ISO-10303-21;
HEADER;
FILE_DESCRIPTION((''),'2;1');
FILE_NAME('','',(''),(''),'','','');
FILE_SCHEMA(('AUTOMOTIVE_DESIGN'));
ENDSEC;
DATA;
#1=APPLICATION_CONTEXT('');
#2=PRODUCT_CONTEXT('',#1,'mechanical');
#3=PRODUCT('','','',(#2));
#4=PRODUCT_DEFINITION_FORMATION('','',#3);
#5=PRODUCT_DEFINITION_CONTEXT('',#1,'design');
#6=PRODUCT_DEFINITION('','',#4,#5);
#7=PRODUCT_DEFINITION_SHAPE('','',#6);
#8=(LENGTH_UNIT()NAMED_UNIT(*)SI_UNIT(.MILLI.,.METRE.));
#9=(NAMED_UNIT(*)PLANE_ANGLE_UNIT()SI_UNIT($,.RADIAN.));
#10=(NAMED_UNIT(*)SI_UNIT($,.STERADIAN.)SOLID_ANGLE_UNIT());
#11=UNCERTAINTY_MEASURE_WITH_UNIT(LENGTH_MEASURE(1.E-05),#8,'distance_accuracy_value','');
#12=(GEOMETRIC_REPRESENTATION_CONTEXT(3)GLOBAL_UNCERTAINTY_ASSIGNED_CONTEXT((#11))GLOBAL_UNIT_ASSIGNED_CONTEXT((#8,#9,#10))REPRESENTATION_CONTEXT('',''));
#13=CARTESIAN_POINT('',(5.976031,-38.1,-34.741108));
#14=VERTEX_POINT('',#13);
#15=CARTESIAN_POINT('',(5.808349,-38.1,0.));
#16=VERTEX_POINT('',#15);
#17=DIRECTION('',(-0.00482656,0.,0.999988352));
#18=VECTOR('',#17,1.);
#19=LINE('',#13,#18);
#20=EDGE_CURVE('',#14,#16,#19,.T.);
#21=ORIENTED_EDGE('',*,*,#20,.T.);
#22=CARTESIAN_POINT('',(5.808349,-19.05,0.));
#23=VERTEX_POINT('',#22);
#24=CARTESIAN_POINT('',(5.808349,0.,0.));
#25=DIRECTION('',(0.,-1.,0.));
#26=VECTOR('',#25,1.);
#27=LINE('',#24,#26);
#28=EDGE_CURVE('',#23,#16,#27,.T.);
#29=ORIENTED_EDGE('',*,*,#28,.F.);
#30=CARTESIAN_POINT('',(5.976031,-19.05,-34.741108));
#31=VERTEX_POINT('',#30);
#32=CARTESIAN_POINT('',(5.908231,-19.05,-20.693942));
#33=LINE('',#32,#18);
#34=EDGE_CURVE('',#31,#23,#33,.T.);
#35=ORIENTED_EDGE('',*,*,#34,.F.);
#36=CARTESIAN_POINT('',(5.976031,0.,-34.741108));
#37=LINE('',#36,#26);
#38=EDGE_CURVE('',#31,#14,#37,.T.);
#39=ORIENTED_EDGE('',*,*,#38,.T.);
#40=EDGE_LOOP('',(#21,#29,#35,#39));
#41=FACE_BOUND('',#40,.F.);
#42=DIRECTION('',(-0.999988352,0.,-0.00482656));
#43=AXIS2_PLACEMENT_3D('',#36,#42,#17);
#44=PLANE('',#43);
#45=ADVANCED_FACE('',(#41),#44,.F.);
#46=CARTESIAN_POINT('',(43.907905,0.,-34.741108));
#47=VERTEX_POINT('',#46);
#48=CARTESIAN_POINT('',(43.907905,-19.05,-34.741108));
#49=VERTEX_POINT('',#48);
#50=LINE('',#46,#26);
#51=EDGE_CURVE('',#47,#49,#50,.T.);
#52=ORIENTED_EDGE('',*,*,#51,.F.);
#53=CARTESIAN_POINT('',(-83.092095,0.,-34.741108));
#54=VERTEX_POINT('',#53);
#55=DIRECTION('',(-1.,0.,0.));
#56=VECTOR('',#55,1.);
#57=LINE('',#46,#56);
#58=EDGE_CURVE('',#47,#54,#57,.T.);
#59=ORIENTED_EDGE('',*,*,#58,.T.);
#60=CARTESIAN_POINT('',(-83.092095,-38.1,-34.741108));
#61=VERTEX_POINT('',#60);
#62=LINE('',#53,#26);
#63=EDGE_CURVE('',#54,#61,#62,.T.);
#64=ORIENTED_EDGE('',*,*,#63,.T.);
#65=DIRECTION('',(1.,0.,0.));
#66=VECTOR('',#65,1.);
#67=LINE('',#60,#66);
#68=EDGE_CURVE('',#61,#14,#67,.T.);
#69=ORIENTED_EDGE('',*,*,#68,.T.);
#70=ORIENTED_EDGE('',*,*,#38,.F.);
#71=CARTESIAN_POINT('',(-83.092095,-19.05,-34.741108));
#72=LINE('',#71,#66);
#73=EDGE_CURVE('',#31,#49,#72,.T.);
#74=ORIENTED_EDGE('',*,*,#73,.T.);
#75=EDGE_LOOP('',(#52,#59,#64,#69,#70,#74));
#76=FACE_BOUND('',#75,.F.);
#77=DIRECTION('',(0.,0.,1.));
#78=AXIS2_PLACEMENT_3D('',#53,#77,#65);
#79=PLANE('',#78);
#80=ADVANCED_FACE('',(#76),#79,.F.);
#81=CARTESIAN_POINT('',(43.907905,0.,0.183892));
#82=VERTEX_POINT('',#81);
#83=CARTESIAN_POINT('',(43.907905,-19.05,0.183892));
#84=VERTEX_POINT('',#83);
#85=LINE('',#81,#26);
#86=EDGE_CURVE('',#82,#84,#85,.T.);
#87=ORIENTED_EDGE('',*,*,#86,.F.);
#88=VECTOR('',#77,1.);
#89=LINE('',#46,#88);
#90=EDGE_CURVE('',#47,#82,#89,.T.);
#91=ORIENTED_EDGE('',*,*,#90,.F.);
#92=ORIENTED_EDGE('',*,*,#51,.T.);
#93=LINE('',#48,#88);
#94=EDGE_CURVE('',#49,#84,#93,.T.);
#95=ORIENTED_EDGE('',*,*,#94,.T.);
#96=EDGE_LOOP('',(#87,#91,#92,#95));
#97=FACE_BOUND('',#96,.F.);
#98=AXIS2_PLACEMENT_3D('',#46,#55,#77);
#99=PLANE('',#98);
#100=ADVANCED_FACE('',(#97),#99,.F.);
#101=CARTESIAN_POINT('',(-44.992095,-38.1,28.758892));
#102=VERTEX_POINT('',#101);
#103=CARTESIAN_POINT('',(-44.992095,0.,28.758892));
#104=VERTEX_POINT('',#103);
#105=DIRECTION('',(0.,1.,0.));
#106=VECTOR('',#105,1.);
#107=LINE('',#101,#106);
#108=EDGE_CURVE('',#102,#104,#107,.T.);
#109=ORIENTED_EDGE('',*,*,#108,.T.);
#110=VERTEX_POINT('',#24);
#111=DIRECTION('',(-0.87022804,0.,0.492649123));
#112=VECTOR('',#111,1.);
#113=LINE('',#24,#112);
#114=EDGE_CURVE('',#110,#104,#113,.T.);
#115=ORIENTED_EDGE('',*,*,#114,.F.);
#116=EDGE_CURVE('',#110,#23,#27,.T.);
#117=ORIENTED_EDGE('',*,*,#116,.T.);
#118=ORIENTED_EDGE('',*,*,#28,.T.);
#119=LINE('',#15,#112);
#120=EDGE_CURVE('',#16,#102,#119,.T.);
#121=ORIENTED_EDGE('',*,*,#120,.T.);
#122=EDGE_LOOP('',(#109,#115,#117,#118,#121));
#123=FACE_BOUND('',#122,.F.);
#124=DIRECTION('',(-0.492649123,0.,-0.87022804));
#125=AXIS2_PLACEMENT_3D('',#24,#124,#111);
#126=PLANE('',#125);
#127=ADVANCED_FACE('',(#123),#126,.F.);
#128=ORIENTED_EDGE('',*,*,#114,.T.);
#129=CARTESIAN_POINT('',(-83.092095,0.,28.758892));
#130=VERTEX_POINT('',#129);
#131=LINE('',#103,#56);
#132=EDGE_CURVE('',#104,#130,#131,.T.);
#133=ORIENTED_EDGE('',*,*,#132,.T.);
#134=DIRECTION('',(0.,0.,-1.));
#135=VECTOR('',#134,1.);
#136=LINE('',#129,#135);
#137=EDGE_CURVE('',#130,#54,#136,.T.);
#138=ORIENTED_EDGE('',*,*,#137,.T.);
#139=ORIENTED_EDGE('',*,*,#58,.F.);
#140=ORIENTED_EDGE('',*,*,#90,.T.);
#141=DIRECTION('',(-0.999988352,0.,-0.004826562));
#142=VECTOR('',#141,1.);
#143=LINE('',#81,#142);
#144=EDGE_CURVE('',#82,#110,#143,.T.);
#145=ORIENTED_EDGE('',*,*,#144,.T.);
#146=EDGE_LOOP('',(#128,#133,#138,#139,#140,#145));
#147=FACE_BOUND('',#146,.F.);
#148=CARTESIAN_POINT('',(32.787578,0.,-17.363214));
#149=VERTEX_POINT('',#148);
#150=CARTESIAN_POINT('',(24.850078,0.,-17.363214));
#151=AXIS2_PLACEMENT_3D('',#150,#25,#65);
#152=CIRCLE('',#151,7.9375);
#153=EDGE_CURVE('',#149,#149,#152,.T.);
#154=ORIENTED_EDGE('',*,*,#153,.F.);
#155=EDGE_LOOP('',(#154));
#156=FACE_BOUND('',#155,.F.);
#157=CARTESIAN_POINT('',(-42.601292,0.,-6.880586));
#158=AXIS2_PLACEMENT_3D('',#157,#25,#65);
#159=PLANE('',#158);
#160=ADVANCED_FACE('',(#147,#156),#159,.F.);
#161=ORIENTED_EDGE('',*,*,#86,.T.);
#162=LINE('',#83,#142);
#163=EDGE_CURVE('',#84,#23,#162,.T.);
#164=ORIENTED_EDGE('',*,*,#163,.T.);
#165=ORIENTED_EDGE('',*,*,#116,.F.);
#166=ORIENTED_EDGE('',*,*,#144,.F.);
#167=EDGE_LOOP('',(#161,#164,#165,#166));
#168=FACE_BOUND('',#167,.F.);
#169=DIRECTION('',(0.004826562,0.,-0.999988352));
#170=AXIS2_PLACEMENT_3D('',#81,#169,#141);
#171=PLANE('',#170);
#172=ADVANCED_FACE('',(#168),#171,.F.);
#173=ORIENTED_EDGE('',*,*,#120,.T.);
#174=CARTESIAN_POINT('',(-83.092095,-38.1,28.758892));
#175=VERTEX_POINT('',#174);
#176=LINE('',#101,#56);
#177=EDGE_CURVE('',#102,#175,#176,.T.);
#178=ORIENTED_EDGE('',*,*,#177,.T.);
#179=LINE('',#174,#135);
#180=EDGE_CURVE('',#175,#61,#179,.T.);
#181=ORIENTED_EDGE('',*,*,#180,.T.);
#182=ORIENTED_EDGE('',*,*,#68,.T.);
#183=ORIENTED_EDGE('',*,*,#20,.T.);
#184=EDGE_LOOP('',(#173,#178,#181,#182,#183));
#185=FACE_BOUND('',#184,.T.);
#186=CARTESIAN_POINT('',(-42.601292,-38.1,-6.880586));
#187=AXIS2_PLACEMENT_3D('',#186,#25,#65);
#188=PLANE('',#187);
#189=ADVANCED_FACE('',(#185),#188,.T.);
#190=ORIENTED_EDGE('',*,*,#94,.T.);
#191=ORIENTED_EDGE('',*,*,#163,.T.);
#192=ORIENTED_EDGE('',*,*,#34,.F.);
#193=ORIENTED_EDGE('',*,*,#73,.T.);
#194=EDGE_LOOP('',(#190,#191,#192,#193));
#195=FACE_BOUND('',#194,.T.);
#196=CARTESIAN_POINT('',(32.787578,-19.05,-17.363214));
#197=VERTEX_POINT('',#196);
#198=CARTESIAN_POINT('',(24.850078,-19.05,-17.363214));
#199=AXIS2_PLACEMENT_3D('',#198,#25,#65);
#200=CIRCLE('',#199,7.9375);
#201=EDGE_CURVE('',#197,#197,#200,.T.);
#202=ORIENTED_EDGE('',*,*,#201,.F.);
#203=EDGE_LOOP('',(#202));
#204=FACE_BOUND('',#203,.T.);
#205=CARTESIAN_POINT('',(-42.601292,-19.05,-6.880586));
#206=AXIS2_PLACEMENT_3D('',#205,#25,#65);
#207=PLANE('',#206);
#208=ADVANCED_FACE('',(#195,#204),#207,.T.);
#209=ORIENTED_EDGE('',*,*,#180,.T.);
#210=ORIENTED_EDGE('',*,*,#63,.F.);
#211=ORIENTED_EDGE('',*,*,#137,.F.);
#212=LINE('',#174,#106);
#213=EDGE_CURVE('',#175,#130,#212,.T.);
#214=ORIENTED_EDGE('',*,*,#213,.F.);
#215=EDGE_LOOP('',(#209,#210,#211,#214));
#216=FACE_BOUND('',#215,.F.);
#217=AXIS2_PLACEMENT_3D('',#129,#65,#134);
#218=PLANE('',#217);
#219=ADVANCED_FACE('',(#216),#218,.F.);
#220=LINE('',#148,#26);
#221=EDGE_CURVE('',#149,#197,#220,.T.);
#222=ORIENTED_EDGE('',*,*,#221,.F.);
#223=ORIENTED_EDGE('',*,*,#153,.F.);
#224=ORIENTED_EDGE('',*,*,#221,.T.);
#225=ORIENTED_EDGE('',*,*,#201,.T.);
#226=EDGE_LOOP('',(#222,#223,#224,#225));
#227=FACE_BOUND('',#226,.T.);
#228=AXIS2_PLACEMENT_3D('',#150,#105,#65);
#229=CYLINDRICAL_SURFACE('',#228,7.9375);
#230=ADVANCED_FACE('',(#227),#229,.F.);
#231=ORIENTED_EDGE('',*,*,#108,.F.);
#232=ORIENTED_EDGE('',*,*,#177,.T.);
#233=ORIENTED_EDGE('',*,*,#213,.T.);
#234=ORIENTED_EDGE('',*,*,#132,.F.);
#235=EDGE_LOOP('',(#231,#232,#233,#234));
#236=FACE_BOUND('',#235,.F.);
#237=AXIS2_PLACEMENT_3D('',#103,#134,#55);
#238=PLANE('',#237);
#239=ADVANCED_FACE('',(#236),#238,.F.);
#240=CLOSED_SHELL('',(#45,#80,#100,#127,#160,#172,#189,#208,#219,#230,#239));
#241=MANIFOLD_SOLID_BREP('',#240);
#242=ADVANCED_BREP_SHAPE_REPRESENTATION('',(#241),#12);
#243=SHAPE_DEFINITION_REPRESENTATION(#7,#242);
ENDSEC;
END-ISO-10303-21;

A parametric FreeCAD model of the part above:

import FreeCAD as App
import Part
import Sketcher
from FreeCAD import Vector
Q = App.Units.Quantity


def add_polygon(sketch, points):
    """Adds a closed chain of lines whose ends are joined by coincident constraints."""
    first, n = sketch.GeometryCount, len(points)
    for a, b in zip(points, points[1:] + points[:1]):
        sketch.addGeometry(Part.LineSegment(App.Vector(*a, 0), App.Vector(*b, 0)), False)
    for i in range(n):
        sketch.addConstraint(Sketcher.Constraint("Coincident", first + i, 2, first + (i + 1) % n, 1))

doc = App.newDocument("Part")
body = doc.addObject("PartDesign::Body", "Body")

sketch1 = body.newObject("Sketcher::SketchObject", "Sketch")
sketch1.AttachmentSupport = (doc.getObject("XZ_Plane"), [""])
sketch1.MapMode = "FlatFace"
add_polygon(sketch1, [(-83, 29), (-83, -35), (6, -35), (6, 0), (-45, 29)])
sketch1.addConstraint(Sketcher.Constraint("Vertical", 0))
sketch1.addConstraint(Sketcher.Constraint("Horizontal", 1))
sketch1.addConstraint(Sketcher.Constraint("Horizontal", 4))
sketch1.addConstraint(Sketcher.Constraint("PointOnObject", 2, 2, -1))
sketch1.addConstraint(Sketcher.Constraint("DistanceX", 4, 2, 4, 1, Q("1.5 in")))
sketch1.addConstraint(Sketcher.Constraint("DistanceY", 0, 2, 0, 1, Q("2.5 in")))
sketch1.addConstraint(Sketcher.Constraint("DistanceX", 1, 1, 1, 2, 89.068126))
sketch1.addConstraint(Sketcher.Constraint("DistanceX", -1, 1, 1, 2, 5.976031))
sketch1.addConstraint(Sketcher.Constraint("DistanceX", -1, 1, 2, 2, 5.808349))
sketch1.addConstraint(Sketcher.Constraint("DistanceY", -1, 1, 3, 2, 28.758892))
pad1 = body.newObject("PartDesign::Pad", "Pad")
pad1.Profile = sketch1
pad1.Length = Q("1.5 in")

sketch2 = body.newObject("Sketcher::SketchObject", "Sketch001")
sketch2.AttachmentSupport = (doc.getObject("XZ_Plane"), [""])
sketch2.MapMode = "FlatFace"
add_polygon(sketch2, [(-83, 29), (-83, -35), (44, -35), (44, 0), (6, 0), (-45, 29)])
sketch2.addGeometry(Part.Circle(Vector(25, -17, 0), Vector(0, 0, 1), 8), False)
sketch2.addConstraint(Sketcher.Constraint("Vertical", 0))
sketch2.addConstraint(Sketcher.Constraint("Horizontal", 1))
sketch2.addConstraint(Sketcher.Constraint("Vertical", 2))
sketch2.addConstraint(Sketcher.Constraint("Horizontal", 5))
sketch2.addConstraint(Sketcher.Constraint("PointOnObject", 3, 2, -1))
sketch2.addConstraint(Sketcher.Constraint("DistanceX", 1, 1, 1, 2, Q("5 in")))
sketch2.addConstraint(Sketcher.Constraint("Diameter", 6, Q("0.625 in")))
sketch2.addConstraint(Sketcher.Constraint("DistanceX", 5, 2, 5, 1, Q("1.5 in")))
sketch2.addConstraint(Sketcher.Constraint("DistanceY", 0, 2, 0, 1, Q("2.5 in")))
sketch2.addConstraint(Sketcher.Constraint("Distance", 3, Q("1.5 in")))
sketch2.addConstraint(Sketcher.Constraint("DistanceY", 2, 1, 2, 2, Q("1.375 in")))
sketch2.addConstraint(Sketcher.Constraint("DistanceX", -1, 1, 6, 3, 24.850078))
sketch2.addConstraint(Sketcher.Constraint("DistanceX", -1, 1, 3, 2, 5.808349))
sketch2.addConstraint(Sketcher.Constraint("DistanceY", -1, 1, 4, 2, 28.758892))
sketch2.addConstraint(Sketcher.Constraint("DistanceY", 6, 3, -1, 1, 17.363214))
pad2 = body.newObject("PartDesign::Pad", "Pad001")
pad2.Profile = sketch2
pad2.Length = Q("0.75 in")

doc.recompute()
